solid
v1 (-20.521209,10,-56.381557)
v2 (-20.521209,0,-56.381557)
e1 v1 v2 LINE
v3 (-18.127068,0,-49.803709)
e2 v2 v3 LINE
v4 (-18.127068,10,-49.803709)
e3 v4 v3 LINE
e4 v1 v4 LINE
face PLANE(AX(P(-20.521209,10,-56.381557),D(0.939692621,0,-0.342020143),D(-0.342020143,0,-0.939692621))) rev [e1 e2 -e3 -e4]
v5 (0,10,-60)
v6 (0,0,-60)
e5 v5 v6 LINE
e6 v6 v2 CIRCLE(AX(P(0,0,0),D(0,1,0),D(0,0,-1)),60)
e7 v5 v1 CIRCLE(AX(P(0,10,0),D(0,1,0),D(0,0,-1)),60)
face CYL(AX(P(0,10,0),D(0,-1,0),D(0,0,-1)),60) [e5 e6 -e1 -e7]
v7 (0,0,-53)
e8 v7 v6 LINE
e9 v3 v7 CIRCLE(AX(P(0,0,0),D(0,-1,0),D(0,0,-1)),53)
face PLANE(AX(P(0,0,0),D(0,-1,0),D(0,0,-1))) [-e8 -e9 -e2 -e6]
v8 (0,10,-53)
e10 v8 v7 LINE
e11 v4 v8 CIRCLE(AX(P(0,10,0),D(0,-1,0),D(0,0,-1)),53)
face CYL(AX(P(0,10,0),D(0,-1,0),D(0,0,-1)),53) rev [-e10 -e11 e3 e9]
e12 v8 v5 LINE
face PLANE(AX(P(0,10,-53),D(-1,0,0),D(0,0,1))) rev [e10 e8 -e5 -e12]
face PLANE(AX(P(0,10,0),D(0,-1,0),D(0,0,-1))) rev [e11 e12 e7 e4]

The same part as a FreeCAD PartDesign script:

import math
import FreeCAD as App
import Part
import Sketcher

V = App.Vector
Q = App.Units.Quantity

doc = App.newDocument("Part")
body = doc.addObject("PartDesign::Body", "Body")

# Sketch on XZ plane
sketch1 = doc.addObject("Sketcher::SketchObject", "Sketch")
body.addObject(sketch1)
sketch1.AttachmentSupport = (doc.XZ_Plane, [""])
sketch1.MapMode = "FlatFace"
sketch1.addGeometry(Part.LineSegment(V(-20.521209, -56.381557, 0), V(-18.127068, -49.803709, 0)), False)
sketch1.addGeometry(Part.ArcOfCircle(Part.Circle(V(0, 0, 0), V(0, 0, 1), 53), math.radians(-110), math.radians(-90)), False)
sketch1.addGeometry(Part.LineSegment(V(0, -53, 0), V(0, -60, 0)), False)
sketch1.addGeometry(Part.ArcOfCircle(Part.Circle(V(0, 0, 0), V(0, 0, 1), 60), math.radians(-110), math.radians(-90)), False)
sketch1.addConstraint(Sketcher.Constraint("Coincident", 0, 2, 1, 1))
sketch1.addConstraint(Sketcher.Constraint("Coincident", 1, 2, 2, 1))
sketch1.addConstraint(Sketcher.Constraint("Coincident", 2, 2, 3, 2))
sketch1.addConstraint(Sketcher.Constraint("Coincident", 3, 1, 0, 1))
sketch1.addConstraint(Sketcher.Constraint("Vertical", 2))
sketch1.addConstraint(Sketcher.Constraint("Coincident", 1, 3, -1, 1))
sketch1.addConstraint(Sketcher.Constraint("Coincident", 3, 3, -1, 1))
sketch1.addConstraint(Sketcher.Constraint("PointOnObject", 1, 2, -2))
sketch1.addConstraint(Sketcher.Constraint("Radius", 1, Q("53 mm")))
sketch1.addConstraint(Sketcher.Constraint("Radius", 3, Q("60 mm")))
sketch1.addConstraint(Sketcher.Constraint("Angle", 0, Q("70 deg")))
sketch1.addConstraint(Sketcher.Constraint("DistanceY", 0, 2, -1, 1, Q("49.803709 mm")))
pad1 = doc.addObject("PartDesign::Pad", "Pad")
body.addObject(pad1)
pad1.Profile = sketch1
pad1.Length = 10
pad1.Reversed = True

doc.recompute()
